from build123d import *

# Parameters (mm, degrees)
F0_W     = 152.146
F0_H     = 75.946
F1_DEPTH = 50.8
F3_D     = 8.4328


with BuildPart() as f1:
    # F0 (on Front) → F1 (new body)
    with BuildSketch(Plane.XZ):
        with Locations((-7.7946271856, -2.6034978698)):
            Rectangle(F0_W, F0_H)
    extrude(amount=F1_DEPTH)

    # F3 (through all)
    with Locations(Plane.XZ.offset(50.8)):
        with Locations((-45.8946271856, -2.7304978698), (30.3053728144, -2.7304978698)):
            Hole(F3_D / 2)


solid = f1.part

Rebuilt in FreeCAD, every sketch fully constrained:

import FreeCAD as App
import Part
import Sketcher
from FreeCAD import Vector
Q = App.Units.Quantity

doc = App.newDocument("Part")
body = doc.addObject("PartDesign::Body", "Body")

sketch1 = body.newObject("Sketcher::SketchObject", "Sketch")
sketch1.AttachmentSupport = (doc.getObject("XZ_Plane"), [""])
sketch1.MapMode = "FlatFace"
sketch1.addGeometry([
    Part.LineSegment(Vector(-83.867627, 35.369502, 0), Vector(-83.867627, -40.576498, 0)),
    Part.LineSegment(Vector(-83.867627, -40.576498, 0), Vector(68.278373, -40.576498, 0)),
    Part.LineSegment(Vector(68.278373, -40.576498, 0), Vector(68.278373, 35.369502, 0)),
    Part.LineSegment(Vector(68.278373, 35.369502, 0), Vector(-83.867627, 35.369502, 0)),
], False)
sketch1.addConstraint([
    Sketcher.Constraint("Coincident", 0, 2, 1, 1),
    Sketcher.Constraint("Coincident", 1, 2, 2, 1),
    Sketcher.Constraint("Coincident", 2, 2, 3, 1),
    Sketcher.Constraint("Coincident", 3, 2, 0, 1),
    Sketcher.Constraint("Vertical", 0),
    Sketcher.Constraint("Horizontal", 1),
    Sketcher.Constraint("Vertical", 2),
    Sketcher.Constraint("Horizontal", 3),
    Sketcher.Constraint("DistanceX", 1, 1, 1, 2, Q("5.99 in")),
    Sketcher.Constraint("DistanceY", 0, 2, 0, 1, Q("2.99 in")),
    Sketcher.Constraint("DistanceY", 0, 2, -1, 1, Q("1.5974999 in")),
    Sketcher.Constraint("DistanceX", 0, 2, -1, 1, 83.867627),
])
pad1 = body.newObject("PartDesign::Pad", "Pad")
pad1.Profile = sketch1
pad1.Length = Q("2 in")

sketch2 = body.newObject("Sketcher::SketchObject", "Sketch001")
sketch2.AttachmentSupport = (doc.getObject("XZ_Plane"), [""])
sketch2.MapMode = "FlatFace"
sketch2.AttachmentOffset = App.Placement(Vector(0, 0, 2 * 25.4), App.Rotation())
sketch2.addGeometry([
    Part.Circle(Vector(-45.894627, -2.730498, 0), Vector(0, 0, 1), 4.2164),
    Part.Circle(Vector(30.305373, -2.730498, 0), Vector(0, 0, 1), 4.2164),
], False)
sketch2.addConstraint([
    Sketcher.Constraint("Equal", 0, 1),
    Sketcher.Constraint("Horizontal", 0, 3, 1, 3),
    Sketcher.Constraint("Diameter", 0, Q("0.332 in")),
    Sketcher.Constraint("DistanceX", 0, 3, 1, 3, Q("3 in")),
    Sketcher.Constraint("DistanceY", 0, 3, -1, 1, Q("0.1074999 in")),
    Sketcher.Constraint("DistanceX", 0, 3, -1, 1, 45.894627),
])
doc.recompute()
hole = body.newObject("PartDesign::Hole", "Hole")
hole.Profile = sketch2
hole.ThreadType = "None"
hole.Diameter = Q("0.332 in")
hole.DepthType = "ThroughAll"

doc.recompute()
